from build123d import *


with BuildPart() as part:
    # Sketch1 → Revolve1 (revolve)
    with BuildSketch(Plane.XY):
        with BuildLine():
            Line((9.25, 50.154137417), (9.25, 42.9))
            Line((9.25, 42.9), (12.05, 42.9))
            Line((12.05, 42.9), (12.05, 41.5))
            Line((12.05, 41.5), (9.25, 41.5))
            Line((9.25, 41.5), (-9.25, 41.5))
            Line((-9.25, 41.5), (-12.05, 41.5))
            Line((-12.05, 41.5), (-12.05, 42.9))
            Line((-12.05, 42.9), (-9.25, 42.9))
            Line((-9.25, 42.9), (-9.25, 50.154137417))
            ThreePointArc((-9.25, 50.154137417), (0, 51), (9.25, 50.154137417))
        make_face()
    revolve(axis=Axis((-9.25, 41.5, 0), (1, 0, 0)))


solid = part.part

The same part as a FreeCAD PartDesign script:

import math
import FreeCAD as App
import Part
import Sketcher

doc = App.newDocument("Part")
body = doc.addObject("PartDesign::Body", "Body")

sketch1 = doc.addObject("Sketcher::SketchObject", "Sketch")
body.addObject(sketch1)
sketch1.AttachmentSupport = (doc.XY_Plane, [""])
sketch1.MapMode = "FlatFace"
sketch1.addGeometry(Part.LineSegment(App.Vector(9.2, 42.9, 0), App.Vector(9.2, 50.2, 0)), False)
sketch1.addGeometry(Part.ArcOfCircle(Part.Circle(App.Vector(0, 0, 0), App.Vector(0, 0, 1), 51), math.radians(80), math.radians(100)), False)
sketch1.addGeometry(Part.LineSegment(App.Vector(-9.2, 50.2, 0), App.Vector(-9.2, 42.9, 0)), False)
sketch1.addGeometry(Part.LineSegment(App.Vector(-9.2, 42.9, 0), App.Vector(-12.1, 42.9, 0)), False)
sketch1.addGeometry(Part.LineSegment(App.Vector(-12.1, 42.9, 0), App.Vector(-12.1, 41.5, 0)), False)
sketch1.addGeometry(Part.LineSegment(App.Vector(-12.1, 41.5, 0), App.Vector(12.1, 41.5, 0)), False)
sketch1.addGeometry(Part.LineSegment(App.Vector(12.1, 41.5, 0), App.Vector(12.1, 42.9, 0)), False)
sketch1.addGeometry(Part.LineSegment(App.Vector(12.1, 42.9, 0), App.Vector(9.2, 42.9, 0)), False)
sketch1.addGeometry(Part.LineSegment(App.Vector(-12.1, 41.5, 0), App.Vector(12.1, 41.5, 0)), True)
sketch1.addConstraint(Sketcher.Constraint("Coincident", 0, 2, 1, 1))
sketch1.addConstraint(Sketcher.Constraint("Coincident", 1, 2, 2, 1))
sketch1.addConstraint(Sketcher.Constraint("Coincident", 2, 2, 3, 1))
sketch1.addConstraint(Sketcher.Constraint("Coincident", 3, 2, 4, 1))
sketch1.addConstraint(Sketcher.Constraint("Coincident", 4, 2, 5, 1))
sketch1.addConstraint(Sketcher.Constraint("Coincident", 5, 2, 6, 1))
sketch1.addConstraint(Sketcher.Constraint("Coincident", 6, 2, 7, 1))
sketch1.addConstraint(Sketcher.Constraint("Coincident", 7, 2, 0, 1))
sketch1.addConstraint(Sketcher.Constraint("Vertical", 0))
sketch1.addConstraint(Sketcher.Constraint("Vertical", 2))
sketch1.addConstraint(Sketcher.Constraint("Horizontal", 3))
sketch1.addConstraint(Sketcher.Constraint("Vertical", 4))
sketch1.addConstraint(Sketcher.Constraint("Horizontal", 5))
sketch1.addConstraint(Sketcher.Constraint("Vertical", 6))
sketch1.addConstraint(Sketcher.Constraint("Horizontal", 7))
sketch1.addConstraint(Sketcher.Constraint("Horizontal", 8))
sketch1.addConstraint(Sketcher.Constraint("Coincident", 1, 3, -1, 1))
sketch1.addConstraint(Sketcher.Constraint("Coincident", 8, 1, 4, 2))
sketch1.addConstraint(Sketcher.Constraint("Symmetric", 3, 2, 6, 2, -2))
sketch1.addConstraint(Sketcher.Constraint("Horizontal", 0, 2, 1, 2))
sketch1.addConstraint(Sketcher.Constraint("Vertical", 6, 2, 8, 2))
sketch1.addConstraint(Sketcher.Constraint("Radius", 1, 51.0))
sketch1.addConstraint(Sketcher.Constraint("DistanceX", 3, 2, 3, 1, 2.8))
sketch1.addConstraint(Sketcher.Constraint("DistanceX", 5, 1, 5, 2, 24.1))
sketch1.addConstraint(Sketcher.Constraint("DistanceY", 4, 2, 4, 1, 1.4))
sketch1.addConstraint(Sketcher.Constraint("DistanceY", -1, 1, 2, 2, 42.9))
revolution = doc.addObject("PartDesign::Revolution", "Revolution")
body.addObject(revolution)
revolution.Profile = sketch1
revolution.ReferenceAxis = (sketch1, ["Axis0"])
revolution.Angle = 360

doc.recompute()
